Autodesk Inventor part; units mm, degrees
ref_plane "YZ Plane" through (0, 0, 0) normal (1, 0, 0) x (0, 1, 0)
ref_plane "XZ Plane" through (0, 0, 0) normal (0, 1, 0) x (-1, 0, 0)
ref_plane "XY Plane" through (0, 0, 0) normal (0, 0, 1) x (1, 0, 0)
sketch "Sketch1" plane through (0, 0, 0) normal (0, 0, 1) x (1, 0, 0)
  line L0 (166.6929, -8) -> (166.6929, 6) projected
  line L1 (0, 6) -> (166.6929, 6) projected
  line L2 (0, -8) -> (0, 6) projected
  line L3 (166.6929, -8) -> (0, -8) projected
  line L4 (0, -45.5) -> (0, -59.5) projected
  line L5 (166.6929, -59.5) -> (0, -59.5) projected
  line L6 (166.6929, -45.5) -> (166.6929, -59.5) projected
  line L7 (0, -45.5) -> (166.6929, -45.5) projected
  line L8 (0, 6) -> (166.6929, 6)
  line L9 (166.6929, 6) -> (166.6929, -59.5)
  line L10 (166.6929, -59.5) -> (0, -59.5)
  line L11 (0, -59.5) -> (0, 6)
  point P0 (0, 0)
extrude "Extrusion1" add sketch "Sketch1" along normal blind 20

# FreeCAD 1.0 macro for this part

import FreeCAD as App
import Part
import Sketcher
from FreeCAD import Vector


def add_polygon(sketch, points):
    """Adds a closed chain of lines whose ends are joined by coincident constraints."""
    first, n = sketch.GeometryCount, len(points)
    for a, b in zip(points, points[1:] + points[:1]):
        sketch.addGeometry(Part.LineSegment(App.Vector(*a, 0), App.Vector(*b, 0)), False)
    for i in range(n):
        sketch.addConstraint(Sketcher.Constraint("Coincident", first + i, 2, first + (i + 1) % n, 1))

doc = App.newDocument("Part")
body = doc.addObject("PartDesign::Body", "Body")

# Sketch on XY plane
sketch1 = doc.addObject("Sketcher::SketchObject", "Sketch")
body.addObject(sketch1)
sketch1.AttachmentSupport = (doc.XY_Plane, [""])
sketch1.MapMode = "FlatFace"
add_polygon(sketch1, [(0, 6), (0, -60), (167, -60), (167, 6)])  # lines 0-3
sketch1.addConstraint(Sketcher.Constraint("Vertical", 0))
sketch1.addConstraint(Sketcher.Constraint("Horizontal", 1))
sketch1.addConstraint(Sketcher.Constraint("Vertical", 2))
sketch1.addConstraint(Sketcher.Constraint("Horizontal", 3))
sketch1.addConstraint(Sketcher.Constraint("PointOnObject", 0, 2, -2))
sketch1.addConstraint(Sketcher.Constraint("DistanceY", 0, 2, 0, 1, 65.5))
sketch1.addConstraint(Sketcher.Constraint("DistanceY", -1, 1, 2, 2, 6.0))
sketch1.addConstraint(Sketcher.Constraint("DistanceX", 1, 1, 1, 2, 166.693))
pad1 = doc.addObject("PartDesign::Pad", "Pad")
body.addObject(pad1)
pad1.Profile = sketch1
pad1.Length = 20

doc.recompute()
